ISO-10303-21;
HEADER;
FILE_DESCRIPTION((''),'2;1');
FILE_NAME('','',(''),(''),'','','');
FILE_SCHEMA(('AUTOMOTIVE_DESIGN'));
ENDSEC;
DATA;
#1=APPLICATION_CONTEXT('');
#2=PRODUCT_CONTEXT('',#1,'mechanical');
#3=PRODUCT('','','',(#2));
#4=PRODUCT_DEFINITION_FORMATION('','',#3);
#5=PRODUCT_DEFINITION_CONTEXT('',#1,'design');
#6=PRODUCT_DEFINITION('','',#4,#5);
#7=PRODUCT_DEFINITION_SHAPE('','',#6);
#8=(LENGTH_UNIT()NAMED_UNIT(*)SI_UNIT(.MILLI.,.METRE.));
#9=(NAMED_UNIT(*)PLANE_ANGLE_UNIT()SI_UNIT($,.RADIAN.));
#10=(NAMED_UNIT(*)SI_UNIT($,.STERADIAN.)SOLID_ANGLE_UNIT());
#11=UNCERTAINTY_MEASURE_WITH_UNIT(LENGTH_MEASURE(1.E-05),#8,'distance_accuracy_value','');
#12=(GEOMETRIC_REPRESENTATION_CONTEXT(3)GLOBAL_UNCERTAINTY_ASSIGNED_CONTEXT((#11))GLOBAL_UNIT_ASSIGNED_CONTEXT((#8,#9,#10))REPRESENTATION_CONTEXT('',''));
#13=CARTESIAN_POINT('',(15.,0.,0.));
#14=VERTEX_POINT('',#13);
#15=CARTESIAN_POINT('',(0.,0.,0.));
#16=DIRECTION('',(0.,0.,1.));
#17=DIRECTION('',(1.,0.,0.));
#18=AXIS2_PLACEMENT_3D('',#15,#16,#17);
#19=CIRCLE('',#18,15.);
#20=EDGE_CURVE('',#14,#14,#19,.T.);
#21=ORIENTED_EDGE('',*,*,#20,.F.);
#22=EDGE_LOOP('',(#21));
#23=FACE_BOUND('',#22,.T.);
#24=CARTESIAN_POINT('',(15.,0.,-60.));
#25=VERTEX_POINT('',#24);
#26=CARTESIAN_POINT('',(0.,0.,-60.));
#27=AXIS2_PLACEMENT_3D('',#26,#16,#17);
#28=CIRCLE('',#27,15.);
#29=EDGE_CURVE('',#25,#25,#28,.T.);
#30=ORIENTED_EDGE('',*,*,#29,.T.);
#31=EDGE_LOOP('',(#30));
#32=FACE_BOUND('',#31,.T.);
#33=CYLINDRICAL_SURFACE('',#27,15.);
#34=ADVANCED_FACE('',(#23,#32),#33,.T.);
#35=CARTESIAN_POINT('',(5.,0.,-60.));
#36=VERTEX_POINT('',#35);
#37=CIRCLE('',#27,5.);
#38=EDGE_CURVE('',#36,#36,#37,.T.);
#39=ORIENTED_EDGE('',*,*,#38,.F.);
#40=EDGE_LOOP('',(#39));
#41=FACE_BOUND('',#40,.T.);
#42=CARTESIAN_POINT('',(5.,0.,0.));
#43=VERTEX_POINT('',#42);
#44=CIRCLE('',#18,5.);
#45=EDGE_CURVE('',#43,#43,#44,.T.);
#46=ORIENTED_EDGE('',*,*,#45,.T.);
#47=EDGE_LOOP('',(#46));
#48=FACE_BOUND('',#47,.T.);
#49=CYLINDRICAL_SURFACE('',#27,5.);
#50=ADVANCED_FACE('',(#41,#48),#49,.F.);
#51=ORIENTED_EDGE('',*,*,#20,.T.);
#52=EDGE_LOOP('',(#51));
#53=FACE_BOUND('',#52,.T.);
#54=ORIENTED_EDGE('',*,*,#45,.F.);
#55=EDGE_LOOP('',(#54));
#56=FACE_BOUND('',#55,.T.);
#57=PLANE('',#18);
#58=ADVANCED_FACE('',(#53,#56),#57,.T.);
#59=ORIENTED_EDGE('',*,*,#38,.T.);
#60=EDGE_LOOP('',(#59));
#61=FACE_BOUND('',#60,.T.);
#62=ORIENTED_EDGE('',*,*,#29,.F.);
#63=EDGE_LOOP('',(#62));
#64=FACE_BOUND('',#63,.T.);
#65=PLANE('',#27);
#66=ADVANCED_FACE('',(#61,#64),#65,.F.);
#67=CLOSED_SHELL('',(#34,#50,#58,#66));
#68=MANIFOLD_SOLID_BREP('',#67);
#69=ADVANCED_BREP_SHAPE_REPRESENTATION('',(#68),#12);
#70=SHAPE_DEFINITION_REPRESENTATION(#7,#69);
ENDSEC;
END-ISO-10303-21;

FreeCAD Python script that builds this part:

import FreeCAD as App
import Part
import Sketcher

V = App.Vector

doc = App.newDocument("Part")
body = doc.addObject("PartDesign::Body", "Body")

sketch1 = body.newObject("Sketcher::SketchObject", "Sketch")
sketch1.AttachmentSupport = (doc.getObject("XY_Plane"), [""])
sketch1.MapMode = "FlatFace"
sketch1.addGeometry(Part.Circle(V(0, 0, 0), V(0, 0, 1), 15), False)
sketch1.addGeometry(Part.Circle(V(0, 0, 0), V(0, 0, 1), 5), False)
sketch1.addConstraint(Sketcher.Constraint("Coincident", 0, 3, -1, 1))
sketch1.addConstraint(Sketcher.Constraint("Coincident", 1, 3, -1, 1))
sketch1.addConstraint(Sketcher.Constraint("Diameter", 0, 30.0))
sketch1.addConstraint(Sketcher.Constraint("Diameter", 1, 10.0))
pad1 = body.newObject("PartDesign::Pad", "Pad")
pad1.Profile = sketch1
pad1.Length = 60
pad1.Reversed = True

doc.recompute()
